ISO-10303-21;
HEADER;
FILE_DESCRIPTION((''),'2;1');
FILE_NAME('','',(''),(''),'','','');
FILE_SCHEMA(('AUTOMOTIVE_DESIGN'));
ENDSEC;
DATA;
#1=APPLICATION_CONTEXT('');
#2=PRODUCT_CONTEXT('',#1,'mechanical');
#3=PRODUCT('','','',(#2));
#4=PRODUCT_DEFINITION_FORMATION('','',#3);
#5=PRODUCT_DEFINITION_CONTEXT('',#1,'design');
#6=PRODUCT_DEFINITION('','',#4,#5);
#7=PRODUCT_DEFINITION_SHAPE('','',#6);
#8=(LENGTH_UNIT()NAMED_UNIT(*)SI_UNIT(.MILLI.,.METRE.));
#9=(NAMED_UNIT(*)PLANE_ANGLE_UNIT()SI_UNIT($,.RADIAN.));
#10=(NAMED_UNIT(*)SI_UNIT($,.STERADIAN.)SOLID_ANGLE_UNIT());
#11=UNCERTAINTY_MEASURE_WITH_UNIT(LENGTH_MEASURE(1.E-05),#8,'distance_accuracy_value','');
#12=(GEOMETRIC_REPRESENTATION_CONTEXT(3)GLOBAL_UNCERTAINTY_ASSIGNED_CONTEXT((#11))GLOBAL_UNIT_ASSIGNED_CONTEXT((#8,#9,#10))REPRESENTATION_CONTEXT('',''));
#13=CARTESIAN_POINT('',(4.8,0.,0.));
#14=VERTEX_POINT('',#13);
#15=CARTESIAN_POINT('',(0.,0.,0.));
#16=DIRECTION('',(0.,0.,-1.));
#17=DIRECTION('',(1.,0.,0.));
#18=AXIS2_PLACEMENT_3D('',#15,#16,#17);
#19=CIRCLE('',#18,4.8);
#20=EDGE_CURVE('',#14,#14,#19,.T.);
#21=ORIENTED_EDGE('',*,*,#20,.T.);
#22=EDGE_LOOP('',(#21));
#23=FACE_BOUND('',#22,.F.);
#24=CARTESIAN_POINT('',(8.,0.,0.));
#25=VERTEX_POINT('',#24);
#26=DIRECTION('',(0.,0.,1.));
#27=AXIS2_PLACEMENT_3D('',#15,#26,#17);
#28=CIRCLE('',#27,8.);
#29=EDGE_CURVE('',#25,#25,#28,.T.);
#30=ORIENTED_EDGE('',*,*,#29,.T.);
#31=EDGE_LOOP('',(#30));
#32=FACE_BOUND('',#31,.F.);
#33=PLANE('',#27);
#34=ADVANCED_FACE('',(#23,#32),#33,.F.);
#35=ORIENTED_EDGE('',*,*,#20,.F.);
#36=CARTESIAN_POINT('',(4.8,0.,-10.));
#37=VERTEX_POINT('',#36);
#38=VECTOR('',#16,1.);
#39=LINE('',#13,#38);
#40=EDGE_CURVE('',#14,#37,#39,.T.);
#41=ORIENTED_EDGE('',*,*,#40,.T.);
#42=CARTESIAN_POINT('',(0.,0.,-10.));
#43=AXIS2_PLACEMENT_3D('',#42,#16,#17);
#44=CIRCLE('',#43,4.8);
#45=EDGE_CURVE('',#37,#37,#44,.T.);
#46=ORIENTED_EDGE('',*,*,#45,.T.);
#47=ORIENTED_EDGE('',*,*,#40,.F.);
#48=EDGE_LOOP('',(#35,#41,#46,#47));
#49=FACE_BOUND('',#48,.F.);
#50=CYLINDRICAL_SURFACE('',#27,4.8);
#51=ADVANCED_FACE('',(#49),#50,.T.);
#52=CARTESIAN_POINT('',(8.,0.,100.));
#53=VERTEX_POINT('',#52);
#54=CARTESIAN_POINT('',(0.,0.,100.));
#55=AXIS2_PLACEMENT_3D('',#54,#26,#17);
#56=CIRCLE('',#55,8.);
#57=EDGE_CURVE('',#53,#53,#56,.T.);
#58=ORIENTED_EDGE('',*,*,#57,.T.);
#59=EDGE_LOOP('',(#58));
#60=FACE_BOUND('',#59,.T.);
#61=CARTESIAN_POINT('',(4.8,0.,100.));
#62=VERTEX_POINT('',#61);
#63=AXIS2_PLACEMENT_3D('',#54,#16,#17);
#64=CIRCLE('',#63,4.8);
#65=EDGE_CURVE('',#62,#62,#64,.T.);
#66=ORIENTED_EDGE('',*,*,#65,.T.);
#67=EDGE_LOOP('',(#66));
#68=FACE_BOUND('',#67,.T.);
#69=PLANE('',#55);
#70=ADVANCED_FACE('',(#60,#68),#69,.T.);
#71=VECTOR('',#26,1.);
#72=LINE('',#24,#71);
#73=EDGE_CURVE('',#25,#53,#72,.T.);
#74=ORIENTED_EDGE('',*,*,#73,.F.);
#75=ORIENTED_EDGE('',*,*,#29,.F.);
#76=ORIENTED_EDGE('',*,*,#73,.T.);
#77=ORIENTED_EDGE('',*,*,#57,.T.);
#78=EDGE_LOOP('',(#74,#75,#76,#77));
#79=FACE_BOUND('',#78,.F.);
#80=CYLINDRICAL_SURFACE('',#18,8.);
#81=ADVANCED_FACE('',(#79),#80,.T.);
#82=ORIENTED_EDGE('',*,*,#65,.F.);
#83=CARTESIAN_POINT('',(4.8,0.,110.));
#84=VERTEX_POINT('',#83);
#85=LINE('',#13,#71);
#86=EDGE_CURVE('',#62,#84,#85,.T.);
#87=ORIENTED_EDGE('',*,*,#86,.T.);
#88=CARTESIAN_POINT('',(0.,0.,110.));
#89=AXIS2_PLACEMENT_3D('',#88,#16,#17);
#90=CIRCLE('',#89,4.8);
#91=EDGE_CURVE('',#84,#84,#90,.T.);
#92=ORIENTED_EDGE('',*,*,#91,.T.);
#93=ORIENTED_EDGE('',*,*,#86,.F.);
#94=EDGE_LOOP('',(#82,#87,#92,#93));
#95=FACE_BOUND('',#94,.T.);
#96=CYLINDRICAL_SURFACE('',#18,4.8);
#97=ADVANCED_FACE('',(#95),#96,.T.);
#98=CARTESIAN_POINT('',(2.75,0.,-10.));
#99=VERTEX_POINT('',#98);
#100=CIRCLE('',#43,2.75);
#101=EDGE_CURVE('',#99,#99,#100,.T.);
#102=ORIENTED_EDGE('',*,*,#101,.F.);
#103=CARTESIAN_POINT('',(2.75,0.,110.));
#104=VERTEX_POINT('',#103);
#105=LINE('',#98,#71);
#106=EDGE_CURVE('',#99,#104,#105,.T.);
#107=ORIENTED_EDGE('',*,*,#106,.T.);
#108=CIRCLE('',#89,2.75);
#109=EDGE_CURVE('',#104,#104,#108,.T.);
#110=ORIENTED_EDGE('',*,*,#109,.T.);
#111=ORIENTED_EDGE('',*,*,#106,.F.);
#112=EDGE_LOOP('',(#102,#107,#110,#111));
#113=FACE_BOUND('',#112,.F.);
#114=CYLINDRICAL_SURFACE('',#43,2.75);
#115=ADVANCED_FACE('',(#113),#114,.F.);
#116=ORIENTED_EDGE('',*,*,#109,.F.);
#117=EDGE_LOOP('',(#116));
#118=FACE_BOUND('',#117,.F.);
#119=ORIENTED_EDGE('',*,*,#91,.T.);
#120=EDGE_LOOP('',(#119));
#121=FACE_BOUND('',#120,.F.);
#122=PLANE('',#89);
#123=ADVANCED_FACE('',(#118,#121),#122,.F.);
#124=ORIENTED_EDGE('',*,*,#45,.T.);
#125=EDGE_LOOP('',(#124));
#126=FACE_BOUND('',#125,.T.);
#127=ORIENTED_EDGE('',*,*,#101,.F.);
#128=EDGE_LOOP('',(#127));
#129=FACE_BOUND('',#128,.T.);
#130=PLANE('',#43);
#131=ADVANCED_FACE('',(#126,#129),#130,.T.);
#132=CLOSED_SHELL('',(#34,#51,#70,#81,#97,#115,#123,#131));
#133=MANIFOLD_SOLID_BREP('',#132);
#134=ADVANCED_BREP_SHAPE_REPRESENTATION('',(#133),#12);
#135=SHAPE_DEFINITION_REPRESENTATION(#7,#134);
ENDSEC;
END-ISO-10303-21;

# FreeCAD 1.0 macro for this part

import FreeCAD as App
import Part
import Sketcher

V = App.Vector
Q = App.Units.Quantity

doc = App.newDocument("Part")
body = doc.addObject("PartDesign::Body", "Body")

sketch1 = body.newObject("Sketcher::SketchObject", "Sketch")
sketch1.AttachmentSupport = (doc.getObject("XY_Plane"), [""])
sketch1.MapMode = "FlatFace"
sketch1.addGeometry(Part.Circle(V(0, 0, 0), V(0, 0, 1), 8), False)
sketch1.addConstraint([
    Sketcher.Constraint("Coincident", 0, 3, -1, 1),
    Sketcher.Constraint("Diameter", 0, Q("16 mm")),
])
pad1 = body.newObject("PartDesign::Pad", "Pad")
pad1.Profile = sketch1
pad1.Length = 100

sketch2 = body.newObject("Sketcher::SketchObject", "Sketch001")
sketch2.AttachmentSupport = (doc.getObject("XY_Plane"), [""])
sketch2.MapMode = "FlatFace"
sketch2.addGeometry(Part.Circle(V(0, 0, 0), V(0, 0, 1), 4.8), False)
sketch2.addConstraint([
    Sketcher.Constraint("Coincident", 0, 3, -1, 1),
    Sketcher.Constraint("Diameter", 0, Q("9.6 mm")),
])
pad2 = body.newObject("PartDesign::Pad", "Pad001")
pad2.Profile = sketch2
pad2.Type = "TwoLengths"
pad2.Length = 10
pad2.Length2 = 110
pad2.Reversed = True

sketch3 = body.newObject("Sketcher::SketchObject", "Sketch002")
sketch3.AttachmentSupport = (doc.getObject("XY_Plane"), [""])
sketch3.MapMode = "FlatFace"
sketch3.AttachmentOffset = App.Placement(V(0, 0, -10), App.Rotation())
sketch3.addGeometry(Part.Circle(V(0, 0, 0), V(0, 0, 1), 2.8), False)
sketch3.addConstraint([
    Sketcher.Constraint("Coincident", 0, 3, -1, 1),
    Sketcher.Constraint("Diameter", 0, Q("5.5 mm")),
])
pocket1 = body.newObject("PartDesign::Pocket", "Pocket")
pocket1.Profile = sketch3
pocket1.Type = "ThroughAll"
pocket1.Reversed = True

doc.recompute()
